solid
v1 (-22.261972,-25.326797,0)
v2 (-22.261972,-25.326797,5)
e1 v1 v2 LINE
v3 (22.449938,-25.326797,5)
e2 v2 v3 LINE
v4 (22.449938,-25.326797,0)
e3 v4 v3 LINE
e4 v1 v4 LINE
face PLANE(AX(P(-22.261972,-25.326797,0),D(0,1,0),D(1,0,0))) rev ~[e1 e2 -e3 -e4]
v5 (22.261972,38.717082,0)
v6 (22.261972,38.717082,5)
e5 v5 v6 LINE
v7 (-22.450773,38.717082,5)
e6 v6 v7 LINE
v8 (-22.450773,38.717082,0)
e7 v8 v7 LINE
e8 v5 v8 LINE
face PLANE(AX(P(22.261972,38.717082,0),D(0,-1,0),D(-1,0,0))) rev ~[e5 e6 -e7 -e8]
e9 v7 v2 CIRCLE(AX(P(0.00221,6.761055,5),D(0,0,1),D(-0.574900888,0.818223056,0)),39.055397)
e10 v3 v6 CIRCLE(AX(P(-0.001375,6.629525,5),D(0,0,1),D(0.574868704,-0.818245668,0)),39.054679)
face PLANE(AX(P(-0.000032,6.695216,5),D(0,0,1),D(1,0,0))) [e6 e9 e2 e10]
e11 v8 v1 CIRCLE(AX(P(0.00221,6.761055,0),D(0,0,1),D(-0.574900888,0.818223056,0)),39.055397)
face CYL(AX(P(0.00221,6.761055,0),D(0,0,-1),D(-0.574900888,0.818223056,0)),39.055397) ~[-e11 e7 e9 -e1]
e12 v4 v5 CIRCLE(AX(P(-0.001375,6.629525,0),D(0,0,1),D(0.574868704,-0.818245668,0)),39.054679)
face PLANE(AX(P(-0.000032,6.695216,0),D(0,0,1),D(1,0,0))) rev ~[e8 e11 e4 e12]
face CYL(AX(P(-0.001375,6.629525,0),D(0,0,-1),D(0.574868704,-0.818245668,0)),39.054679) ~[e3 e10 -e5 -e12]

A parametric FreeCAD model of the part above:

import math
import FreeCAD as App
import Part
import Sketcher
Q = App.Units.Quantity

doc = App.newDocument("Part")
body = doc.addObject("PartDesign::Body", "Body")

sketch1 = body.newObject("Sketcher::SketchObject", "Sketch")
sketch1.AttachmentSupport = (doc.getObject("XY_Plane"), [""])
sketch1.MapMode = "FlatFace"
sketch1.addGeometry([
    Part.ArcOfCircle(Part.Circle(App.Vector(0, 7, 0), App.Vector(0, 0, 1), 39), math.radians(-55), math.radians(55)),
    Part.LineSegment(App.Vector(22, 39, 0), App.Vector(-22, 39, 0)),
    Part.ArcOfCircle(Part.Circle(App.Vector(0, 7, 0), App.Vector(0, 0, 1), 39), math.radians(125), math.radians(235)),
    Part.LineSegment(App.Vector(-22, -25, 0), App.Vector(22, -25, 0)),
], False)
sketch1.addConstraint([
    Sketcher.Constraint("Coincident", 0, 2, 1, 1),
    Sketcher.Constraint("Coincident", 1, 2, 2, 1),
    Sketcher.Constraint("Coincident", 2, 2, 3, 1),
    Sketcher.Constraint("Coincident", 3, 2, 0, 1),
    Sketcher.Constraint("Horizontal", 1),
    Sketcher.Constraint("Horizontal", 3),
    Sketcher.Constraint("Radius", 0, Q("39.054679 mm")),
    Sketcher.Constraint("Radius", 2, Q("39.055397 mm")),
    Sketcher.Constraint("DistanceX", 3, 1, 3, 2, Q("44.71191 mm")),
    Sketcher.Constraint("DistanceX", 1, 2, 0, 3, Q("22.449398 mm")),
    Sketcher.Constraint("DistanceX", 1, 2, 2, 2, Q("0.188801 mm")),
    Sketcher.Constraint("DistanceX", 1, 2, 1, 1, Q("44.712745 mm")),
    Sketcher.Constraint("DistanceX", -1, 1, 2, 3, Q("0.00221 mm")),
    Sketcher.Constraint("DistanceY", -1, 1, 0, 2, Q("38.717082 mm")),
])
pad1 = body.newObject("PartDesign::Pad", "Pad")
pad1.Profile = sketch1
pad1.Length = 5

doc.recompute()
